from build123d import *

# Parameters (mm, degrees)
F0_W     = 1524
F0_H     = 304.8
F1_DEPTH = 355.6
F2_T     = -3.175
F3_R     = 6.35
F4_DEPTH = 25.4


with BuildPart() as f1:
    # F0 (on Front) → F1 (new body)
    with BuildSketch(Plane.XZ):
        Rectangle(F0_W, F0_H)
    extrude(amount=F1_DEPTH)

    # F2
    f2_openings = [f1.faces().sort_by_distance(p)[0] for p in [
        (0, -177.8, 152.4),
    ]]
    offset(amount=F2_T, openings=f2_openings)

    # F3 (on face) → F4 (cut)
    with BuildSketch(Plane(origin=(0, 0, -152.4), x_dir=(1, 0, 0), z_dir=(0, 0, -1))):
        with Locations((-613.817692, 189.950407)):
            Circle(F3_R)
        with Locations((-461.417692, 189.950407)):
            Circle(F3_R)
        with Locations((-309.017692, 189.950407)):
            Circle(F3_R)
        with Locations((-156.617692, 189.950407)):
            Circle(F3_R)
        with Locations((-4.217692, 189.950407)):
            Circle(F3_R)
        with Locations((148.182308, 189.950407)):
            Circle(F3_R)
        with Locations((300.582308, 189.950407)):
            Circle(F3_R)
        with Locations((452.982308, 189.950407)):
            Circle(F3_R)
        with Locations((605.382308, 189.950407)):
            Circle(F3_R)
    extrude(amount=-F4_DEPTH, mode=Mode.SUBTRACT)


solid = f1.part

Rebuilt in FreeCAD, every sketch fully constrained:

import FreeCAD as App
import Part
import Sketcher

V = App.Vector
Q = App.Units.Quantity


def faces_at(feature, points):
    """Names of the faces that lie closest to the given points."""
    faces = feature.Shape.Faces
    near = lambda p: min(range(len(faces)), key=lambda i: faces[i].distToShape(Part.Vertex(*p))[0])
    return sorted({f"Face{near(p) + 1}" for p in points})

doc = App.newDocument("Part")
body = doc.addObject("PartDesign::Body", "Body")

# Sketch on XZ plane
sketch1 = body.newObject("Sketcher::SketchObject", "Sketch")
sketch1.AttachmentSupport = (doc.getObject("XZ_Plane"), [""])
sketch1.MapMode = "FlatFace"
sketch1.addGeometry(Part.LineSegment(V(-762, 152.4, 0), V(-762, -152.4, 0)), False)
sketch1.addGeometry(Part.LineSegment(V(-762, -152.4, 0), V(762, -152.4, 0)), False)
sketch1.addGeometry(Part.LineSegment(V(762, -152.4, 0), V(762, 152.4, 0)), False)
sketch1.addGeometry(Part.LineSegment(V(762, 152.4, 0), V(-762, 152.4, 0)), False)
sketch1.addConstraint(Sketcher.Constraint("Coincident", 0, 2, 1, 1))
sketch1.addConstraint(Sketcher.Constraint("Coincident", 1, 2, 2, 1))
sketch1.addConstraint(Sketcher.Constraint("Coincident", 2, 2, 3, 1))
sketch1.addConstraint(Sketcher.Constraint("Coincident", 3, 2, 0, 1))
sketch1.addConstraint(Sketcher.Constraint("Vertical", 0))
sketch1.addConstraint(Sketcher.Constraint("Horizontal", 1))
sketch1.addConstraint(Sketcher.Constraint("Vertical", 2))
sketch1.addConstraint(Sketcher.Constraint("Horizontal", 3))
sketch1.addConstraint(Sketcher.Constraint("Symmetric", 0, 2, 2, 2, -1, 1))
sketch1.addConstraint(Sketcher.Constraint("DistanceX", 1, 1, 1, 2, Q("60 in")))
sketch1.addConstraint(Sketcher.Constraint("DistanceY", 0, 2, 0, 1, Q("12 in")))
pad1 = body.newObject("PartDesign::Pad", "Pad")
pad1.Profile = sketch1
pad1.Length = Q("14 in")
doc.recompute()

thickness = body.newObject("PartDesign::Thickness", "Thickness")
thickness.Base = (pad1, faces_at(pad1, [(0, -177.8, 152.4)]))
thickness.Value = Q("0.125 in")
thickness.Reversed = True
thickness.Join = "Arc"

# Sketch on XY plane
sketch2 = body.newObject("Sketcher::SketchObject", "Sketch001")
sketch2.AttachmentSupport = (doc.getObject("XY_Plane"), [""])
sketch2.MapMode = "FlatFace"
sketch2.AttachmentOffset = App.Placement(V(0, 0, -6 * 25.4), App.Rotation())
sketch2.addGeometry(Part.Circle(V(-613.817692, -189.950407, 0), V(0, 0, 1), 6.35), False)
sketch2.addGeometry(Part.Circle(V(-461.417692, -189.950407, 0), V(0, 0, 1), 6.35), False)
sketch2.addGeometry(Part.Circle(V(-309.017692, -189.950407, 0), V(0, 0, 1), 6.35), False)
sketch2.addGeometry(Part.Circle(V(-156.617692, -189.950407, 0), V(0, 0, 1), 6.35), False)
sketch2.addGeometry(Part.Circle(V(-4.217692, -189.950407, 0), V(0, 0, 1), 6.35), False)
sketch2.addGeometry(Part.Circle(V(148.182308, -189.950407, 0), V(0, 0, 1), 6.35), False)
sketch2.addGeometry(Part.Circle(V(300.582308, -189.950407, 0), V(0, 0, 1), 6.35), False)
sketch2.addGeometry(Part.Circle(V(452.982308, -189.950407, 0), V(0, 0, 1), 6.35), False)
sketch2.addGeometry(Part.Circle(V(605.382308, -189.950407, 0), V(0, 0, 1), 6.35), False)
sketch2.addConstraint(Sketcher.Constraint("Equal", 0, 1))
sketch2.addConstraint(Sketcher.Constraint("Equal", 1, 2))
sketch2.addConstraint(Sketcher.Constraint("Equal", 2, 3))
sketch2.addConstraint(Sketcher.Constraint("Equal", 3, 4))
sketch2.addConstraint(Sketcher.Constraint("Equal", 4, 5))
sketch2.addConstraint(Sketcher.Constraint("Equal", 5, 6))
sketch2.addConstraint(Sketcher.Constraint("Equal", 6, 7))
sketch2.addConstraint(Sketcher.Constraint("Equal", 7, 8))
sketch2.addConstraint(Sketcher.Constraint("Horizontal", 0, 3, 1, 3))
sketch2.addConstraint(Sketcher.Constraint("Horizontal", 1, 3, 2, 3))
sketch2.addConstraint(Sketcher.Constraint("Horizontal", 2, 3, 3, 3))
sketch2.addConstraint(Sketcher.Constraint("Horizontal", 3, 3, 4, 3))
sketch2.addConstraint(Sketcher.Constraint("Horizontal", 4, 3, 5, 3))
sketch2.addConstraint(Sketcher.Constraint("Horizontal", 5, 3, 6, 3))
sketch2.addConstraint(Sketcher.Constraint("Horizontal", 6, 3, 7, 3))
sketch2.addConstraint(Sketcher.Constraint("Horizontal", 7, 3, 8, 3))
sketch2.addConstraint(Sketcher.Constraint("Diameter", 0, Q("0.5 in")))
sketch2.addConstraint(Sketcher.Constraint("DistanceX", 0, 3, 1, 3, Q("6 in")))
sketch2.addConstraint(Sketcher.Constraint("DistanceX", 1, 3, 2, 3, Q("6 in")))
sketch2.addConstraint(Sketcher.Constraint("DistanceX", 2, 3, 3, 3, Q("6 in")))
sketch2.addConstraint(Sketcher.Constraint("DistanceX", 3, 3, 4, 3, Q("6 in")))
sketch2.addConstraint(Sketcher.Constraint("DistanceX", 4, 3, 5, 3, Q("6 in")))
sketch2.addConstraint(Sketcher.Constraint("DistanceX", 5, 3, 6, 3, Q("6 in")))
sketch2.addConstraint(Sketcher.Constraint("DistanceX", 6, 3, 7, 3, Q("6 in")))
sketch2.addConstraint(Sketcher.Constraint("DistanceX", 7, 3, 8, 3, Q("6 in")))
sketch2.addConstraint(Sketcher.Constraint("DistanceX", 0, 3, -1, 1, 613.817692))
sketch2.addConstraint(Sketcher.Constraint("DistanceY", 0, 3, -1, 1, 189.950407))
pocket1 = body.newObject("PartDesign::Pocket", "Pocket")
pocket1.Profile = sketch2
pocket1.Length = Q("1 in")
pocket1.Reversed = True

doc.recompute()
